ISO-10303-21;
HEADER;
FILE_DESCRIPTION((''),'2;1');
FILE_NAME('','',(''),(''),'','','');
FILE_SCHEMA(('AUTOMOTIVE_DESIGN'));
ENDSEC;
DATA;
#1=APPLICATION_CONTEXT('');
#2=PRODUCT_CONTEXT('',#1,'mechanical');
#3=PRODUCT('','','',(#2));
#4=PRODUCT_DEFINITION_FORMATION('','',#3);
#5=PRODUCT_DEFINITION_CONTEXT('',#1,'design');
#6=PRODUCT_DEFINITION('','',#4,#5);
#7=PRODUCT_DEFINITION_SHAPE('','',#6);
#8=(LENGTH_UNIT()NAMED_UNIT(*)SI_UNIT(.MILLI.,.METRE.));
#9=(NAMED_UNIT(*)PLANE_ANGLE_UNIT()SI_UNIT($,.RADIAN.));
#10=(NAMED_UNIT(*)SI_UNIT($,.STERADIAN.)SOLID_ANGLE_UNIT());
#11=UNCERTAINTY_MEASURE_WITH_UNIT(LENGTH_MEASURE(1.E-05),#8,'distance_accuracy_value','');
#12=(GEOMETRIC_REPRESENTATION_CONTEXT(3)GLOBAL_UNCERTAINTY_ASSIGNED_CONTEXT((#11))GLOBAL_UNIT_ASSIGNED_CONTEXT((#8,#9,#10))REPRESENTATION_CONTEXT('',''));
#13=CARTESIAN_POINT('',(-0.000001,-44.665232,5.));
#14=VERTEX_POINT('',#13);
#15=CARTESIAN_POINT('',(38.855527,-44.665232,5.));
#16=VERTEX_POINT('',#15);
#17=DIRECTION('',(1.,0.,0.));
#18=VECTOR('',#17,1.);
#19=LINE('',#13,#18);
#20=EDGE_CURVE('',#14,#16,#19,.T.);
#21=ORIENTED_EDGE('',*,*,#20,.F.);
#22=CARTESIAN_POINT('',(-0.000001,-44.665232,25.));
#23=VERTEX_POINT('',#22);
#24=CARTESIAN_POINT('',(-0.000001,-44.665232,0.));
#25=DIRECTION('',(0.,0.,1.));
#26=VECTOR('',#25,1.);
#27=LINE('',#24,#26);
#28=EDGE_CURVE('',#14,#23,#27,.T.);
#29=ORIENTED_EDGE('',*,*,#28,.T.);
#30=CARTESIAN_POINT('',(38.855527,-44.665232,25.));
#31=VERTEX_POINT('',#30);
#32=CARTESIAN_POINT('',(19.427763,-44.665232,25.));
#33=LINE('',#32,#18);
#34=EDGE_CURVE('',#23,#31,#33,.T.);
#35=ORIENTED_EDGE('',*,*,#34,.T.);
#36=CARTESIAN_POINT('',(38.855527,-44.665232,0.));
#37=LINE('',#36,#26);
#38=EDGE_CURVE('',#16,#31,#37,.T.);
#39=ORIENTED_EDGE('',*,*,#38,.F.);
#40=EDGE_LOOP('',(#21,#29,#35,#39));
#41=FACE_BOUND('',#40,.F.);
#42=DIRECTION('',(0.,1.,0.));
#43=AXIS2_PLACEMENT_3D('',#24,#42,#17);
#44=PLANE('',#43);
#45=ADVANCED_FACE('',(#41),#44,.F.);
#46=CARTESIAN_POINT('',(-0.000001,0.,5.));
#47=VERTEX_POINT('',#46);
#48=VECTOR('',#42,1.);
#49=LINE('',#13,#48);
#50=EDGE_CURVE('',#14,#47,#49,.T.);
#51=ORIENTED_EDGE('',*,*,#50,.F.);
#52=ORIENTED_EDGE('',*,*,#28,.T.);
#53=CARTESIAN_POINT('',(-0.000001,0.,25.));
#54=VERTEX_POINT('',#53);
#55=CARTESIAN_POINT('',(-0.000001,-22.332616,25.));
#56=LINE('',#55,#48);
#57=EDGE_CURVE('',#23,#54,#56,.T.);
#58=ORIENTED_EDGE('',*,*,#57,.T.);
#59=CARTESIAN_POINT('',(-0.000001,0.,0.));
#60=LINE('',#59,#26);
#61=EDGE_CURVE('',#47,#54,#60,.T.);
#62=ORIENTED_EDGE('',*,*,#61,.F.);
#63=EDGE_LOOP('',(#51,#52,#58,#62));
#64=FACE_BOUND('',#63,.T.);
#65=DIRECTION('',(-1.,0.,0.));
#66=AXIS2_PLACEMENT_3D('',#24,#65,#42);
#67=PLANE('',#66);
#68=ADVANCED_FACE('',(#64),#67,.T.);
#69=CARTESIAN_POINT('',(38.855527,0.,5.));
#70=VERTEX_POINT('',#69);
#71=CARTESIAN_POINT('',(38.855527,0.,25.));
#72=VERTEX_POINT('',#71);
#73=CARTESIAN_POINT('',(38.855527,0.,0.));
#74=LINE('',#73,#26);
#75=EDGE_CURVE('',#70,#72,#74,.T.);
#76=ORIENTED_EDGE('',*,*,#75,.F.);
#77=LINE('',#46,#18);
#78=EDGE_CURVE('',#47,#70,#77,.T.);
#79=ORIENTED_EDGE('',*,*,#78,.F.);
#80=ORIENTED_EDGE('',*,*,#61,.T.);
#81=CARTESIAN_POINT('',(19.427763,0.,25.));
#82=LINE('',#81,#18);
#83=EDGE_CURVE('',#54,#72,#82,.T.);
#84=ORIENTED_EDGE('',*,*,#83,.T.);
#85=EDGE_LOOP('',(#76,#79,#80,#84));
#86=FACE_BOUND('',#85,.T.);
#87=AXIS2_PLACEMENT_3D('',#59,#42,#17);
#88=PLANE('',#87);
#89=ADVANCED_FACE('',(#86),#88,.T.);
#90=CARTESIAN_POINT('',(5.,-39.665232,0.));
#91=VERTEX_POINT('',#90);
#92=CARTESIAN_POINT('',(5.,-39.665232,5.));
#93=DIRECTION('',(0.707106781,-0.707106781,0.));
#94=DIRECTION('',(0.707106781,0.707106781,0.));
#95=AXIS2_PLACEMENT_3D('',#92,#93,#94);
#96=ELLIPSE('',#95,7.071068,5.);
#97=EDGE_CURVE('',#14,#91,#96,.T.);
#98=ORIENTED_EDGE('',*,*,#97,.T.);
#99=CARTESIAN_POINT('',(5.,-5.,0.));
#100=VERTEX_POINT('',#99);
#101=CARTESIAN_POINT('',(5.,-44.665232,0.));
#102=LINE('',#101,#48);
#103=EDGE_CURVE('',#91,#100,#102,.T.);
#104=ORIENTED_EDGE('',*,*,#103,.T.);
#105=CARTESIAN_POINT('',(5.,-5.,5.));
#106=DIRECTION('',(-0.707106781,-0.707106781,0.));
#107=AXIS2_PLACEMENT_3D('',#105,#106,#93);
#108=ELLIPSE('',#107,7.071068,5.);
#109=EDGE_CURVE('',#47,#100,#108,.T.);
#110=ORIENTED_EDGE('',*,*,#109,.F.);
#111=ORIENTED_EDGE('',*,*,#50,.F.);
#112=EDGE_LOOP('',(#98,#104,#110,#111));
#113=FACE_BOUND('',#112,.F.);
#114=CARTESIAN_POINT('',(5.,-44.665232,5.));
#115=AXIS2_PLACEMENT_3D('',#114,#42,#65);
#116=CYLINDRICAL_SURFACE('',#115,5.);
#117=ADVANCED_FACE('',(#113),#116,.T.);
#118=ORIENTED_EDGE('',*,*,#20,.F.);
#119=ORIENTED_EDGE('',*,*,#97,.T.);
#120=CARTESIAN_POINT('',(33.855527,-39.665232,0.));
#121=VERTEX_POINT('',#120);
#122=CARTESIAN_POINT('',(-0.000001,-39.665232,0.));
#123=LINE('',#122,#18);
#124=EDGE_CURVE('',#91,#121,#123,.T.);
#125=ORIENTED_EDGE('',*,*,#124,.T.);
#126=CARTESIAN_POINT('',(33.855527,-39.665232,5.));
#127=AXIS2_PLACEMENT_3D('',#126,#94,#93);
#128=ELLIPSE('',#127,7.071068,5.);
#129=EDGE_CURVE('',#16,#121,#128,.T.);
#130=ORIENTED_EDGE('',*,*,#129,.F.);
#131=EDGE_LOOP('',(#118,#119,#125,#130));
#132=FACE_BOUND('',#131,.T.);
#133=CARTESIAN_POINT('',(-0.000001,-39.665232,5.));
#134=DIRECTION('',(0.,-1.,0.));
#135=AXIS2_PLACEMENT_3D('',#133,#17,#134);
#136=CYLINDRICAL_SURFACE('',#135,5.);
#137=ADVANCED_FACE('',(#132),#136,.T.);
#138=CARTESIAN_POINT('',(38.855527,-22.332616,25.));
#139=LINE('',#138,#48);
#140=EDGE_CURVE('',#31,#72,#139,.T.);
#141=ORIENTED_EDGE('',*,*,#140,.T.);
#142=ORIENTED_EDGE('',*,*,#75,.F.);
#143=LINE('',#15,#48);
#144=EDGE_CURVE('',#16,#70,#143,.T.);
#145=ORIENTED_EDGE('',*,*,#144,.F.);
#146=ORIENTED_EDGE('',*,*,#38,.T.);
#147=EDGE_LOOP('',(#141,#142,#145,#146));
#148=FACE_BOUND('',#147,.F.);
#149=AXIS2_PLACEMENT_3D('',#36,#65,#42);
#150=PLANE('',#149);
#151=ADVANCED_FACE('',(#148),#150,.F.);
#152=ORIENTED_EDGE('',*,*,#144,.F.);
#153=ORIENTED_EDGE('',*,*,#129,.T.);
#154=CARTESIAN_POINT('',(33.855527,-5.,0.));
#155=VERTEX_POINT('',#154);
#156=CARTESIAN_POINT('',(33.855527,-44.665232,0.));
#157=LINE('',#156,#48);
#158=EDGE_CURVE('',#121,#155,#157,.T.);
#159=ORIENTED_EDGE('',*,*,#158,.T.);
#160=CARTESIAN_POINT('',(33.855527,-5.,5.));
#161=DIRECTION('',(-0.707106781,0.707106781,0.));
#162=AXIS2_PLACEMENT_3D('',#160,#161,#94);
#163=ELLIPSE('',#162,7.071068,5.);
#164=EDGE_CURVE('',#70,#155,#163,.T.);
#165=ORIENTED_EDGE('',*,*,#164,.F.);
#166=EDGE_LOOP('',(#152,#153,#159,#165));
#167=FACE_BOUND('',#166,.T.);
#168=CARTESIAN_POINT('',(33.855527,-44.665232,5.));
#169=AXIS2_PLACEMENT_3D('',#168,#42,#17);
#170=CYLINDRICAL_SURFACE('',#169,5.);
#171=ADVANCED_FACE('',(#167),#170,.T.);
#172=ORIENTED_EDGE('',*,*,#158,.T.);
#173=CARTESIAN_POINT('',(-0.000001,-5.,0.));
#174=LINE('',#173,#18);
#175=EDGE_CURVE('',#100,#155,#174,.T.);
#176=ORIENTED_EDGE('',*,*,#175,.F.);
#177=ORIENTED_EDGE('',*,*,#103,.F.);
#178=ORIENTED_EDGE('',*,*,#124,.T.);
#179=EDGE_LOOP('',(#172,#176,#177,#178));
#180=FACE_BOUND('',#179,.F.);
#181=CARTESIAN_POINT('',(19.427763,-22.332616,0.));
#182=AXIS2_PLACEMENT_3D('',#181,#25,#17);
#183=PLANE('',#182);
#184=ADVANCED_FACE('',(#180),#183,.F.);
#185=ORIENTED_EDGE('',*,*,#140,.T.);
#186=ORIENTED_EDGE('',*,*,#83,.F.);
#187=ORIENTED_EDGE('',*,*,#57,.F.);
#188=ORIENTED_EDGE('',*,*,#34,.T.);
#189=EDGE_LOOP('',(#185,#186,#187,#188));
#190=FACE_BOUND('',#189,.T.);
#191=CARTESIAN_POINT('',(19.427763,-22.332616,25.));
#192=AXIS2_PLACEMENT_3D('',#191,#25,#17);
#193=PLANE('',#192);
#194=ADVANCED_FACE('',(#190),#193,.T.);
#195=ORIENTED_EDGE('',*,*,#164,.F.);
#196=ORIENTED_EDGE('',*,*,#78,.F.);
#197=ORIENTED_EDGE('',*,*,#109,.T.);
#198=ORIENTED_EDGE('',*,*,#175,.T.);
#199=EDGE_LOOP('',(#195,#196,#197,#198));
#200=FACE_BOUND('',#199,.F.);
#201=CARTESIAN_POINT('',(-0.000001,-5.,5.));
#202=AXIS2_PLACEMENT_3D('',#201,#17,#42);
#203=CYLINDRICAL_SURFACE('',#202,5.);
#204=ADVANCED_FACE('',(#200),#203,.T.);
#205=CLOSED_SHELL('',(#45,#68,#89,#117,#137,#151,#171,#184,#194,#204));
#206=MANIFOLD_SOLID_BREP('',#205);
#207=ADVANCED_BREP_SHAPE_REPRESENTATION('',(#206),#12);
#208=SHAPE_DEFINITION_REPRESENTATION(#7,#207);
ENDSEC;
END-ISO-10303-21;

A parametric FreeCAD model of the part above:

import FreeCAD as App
import Part
import Sketcher
Q = App.Units.Quantity


def edges_at(feature, points):
    """Names of the edges that pass closest to the given points."""
    edges = feature.Shape.Edges
    near = lambda p: min(range(len(edges)), key=lambda i: edges[i].distToShape(Part.Vertex(*p))[0])
    return sorted({f"Edge{near(p) + 1}" for p in points})


def add_polygon(sketch, points):
    """Adds a closed chain of lines whose ends are joined by coincident constraints."""
    first, n = sketch.GeometryCount, len(points)
    for a, b in zip(points, points[1:] + points[:1]):
        sketch.addGeometry(Part.LineSegment(App.Vector(*a, 0), App.Vector(*b, 0)), False)
    for i in range(n):
        sketch.addConstraint(Sketcher.Constraint("Coincident", first + i, 2, first + (i + 1) % n, 1))

doc = App.newDocument("Part")
params = doc.addObject("Spreadsheet::Sheet", "Params")
for row, (alias, value) in enumerate([
    ("pad1_length", "25 mm"),
    ("fillet_radius", "5 mm"),
], start=1):
    params.set(f"A{row}", alias)
    params.set(f"B{row}", "=" + value)
    params.setAlias(f"B{row}", alias)

body = doc.addObject("PartDesign::Body", "Body")

sketch1 = body.newObject("Sketcher::SketchObject", "Sketch")
sketch1.AttachmentSupport = (doc.getObject("XY_Plane"), [""])
sketch1.MapMode = "FlatFace"
add_polygon(sketch1, [(0, 0), (0, -44.665232), (38.855527, -44.665232), (38.855527, 0)])
sketch1.addConstraint([
    Sketcher.Constraint("Vertical", 0),
    Sketcher.Constraint("Horizontal", 1),
    Sketcher.Constraint("Vertical", 2),
    Sketcher.Constraint("Horizontal", 3),
    Sketcher.Constraint("Coincident", 3, 2, -1, 1),
    Sketcher.Constraint("DistanceX", 1, 1, 1, 2, Q("38.855527 mm")),
    Sketcher.Constraint("DistanceY", 0, 2, 0, 1, Q("44.665232 mm")),
])
pad1 = body.newObject("PartDesign::Pad", "Pad")
pad1.Profile = sketch1
pad1.setExpression("Length", "Params.pad1_length")
doc.recompute()

fillet = body.newObject("PartDesign::Fillet", "Fillet")
fillet.Base = (pad1, edges_at(pad1, [
    (19.428, -44.665, 0),
    (38.856, -22.333, 0),
    (19.428, 0, 0),
    (0, -22.333, 0),
]))
fillet.setExpression("Radius", "Params.fillet_radius")

doc.recompute()
